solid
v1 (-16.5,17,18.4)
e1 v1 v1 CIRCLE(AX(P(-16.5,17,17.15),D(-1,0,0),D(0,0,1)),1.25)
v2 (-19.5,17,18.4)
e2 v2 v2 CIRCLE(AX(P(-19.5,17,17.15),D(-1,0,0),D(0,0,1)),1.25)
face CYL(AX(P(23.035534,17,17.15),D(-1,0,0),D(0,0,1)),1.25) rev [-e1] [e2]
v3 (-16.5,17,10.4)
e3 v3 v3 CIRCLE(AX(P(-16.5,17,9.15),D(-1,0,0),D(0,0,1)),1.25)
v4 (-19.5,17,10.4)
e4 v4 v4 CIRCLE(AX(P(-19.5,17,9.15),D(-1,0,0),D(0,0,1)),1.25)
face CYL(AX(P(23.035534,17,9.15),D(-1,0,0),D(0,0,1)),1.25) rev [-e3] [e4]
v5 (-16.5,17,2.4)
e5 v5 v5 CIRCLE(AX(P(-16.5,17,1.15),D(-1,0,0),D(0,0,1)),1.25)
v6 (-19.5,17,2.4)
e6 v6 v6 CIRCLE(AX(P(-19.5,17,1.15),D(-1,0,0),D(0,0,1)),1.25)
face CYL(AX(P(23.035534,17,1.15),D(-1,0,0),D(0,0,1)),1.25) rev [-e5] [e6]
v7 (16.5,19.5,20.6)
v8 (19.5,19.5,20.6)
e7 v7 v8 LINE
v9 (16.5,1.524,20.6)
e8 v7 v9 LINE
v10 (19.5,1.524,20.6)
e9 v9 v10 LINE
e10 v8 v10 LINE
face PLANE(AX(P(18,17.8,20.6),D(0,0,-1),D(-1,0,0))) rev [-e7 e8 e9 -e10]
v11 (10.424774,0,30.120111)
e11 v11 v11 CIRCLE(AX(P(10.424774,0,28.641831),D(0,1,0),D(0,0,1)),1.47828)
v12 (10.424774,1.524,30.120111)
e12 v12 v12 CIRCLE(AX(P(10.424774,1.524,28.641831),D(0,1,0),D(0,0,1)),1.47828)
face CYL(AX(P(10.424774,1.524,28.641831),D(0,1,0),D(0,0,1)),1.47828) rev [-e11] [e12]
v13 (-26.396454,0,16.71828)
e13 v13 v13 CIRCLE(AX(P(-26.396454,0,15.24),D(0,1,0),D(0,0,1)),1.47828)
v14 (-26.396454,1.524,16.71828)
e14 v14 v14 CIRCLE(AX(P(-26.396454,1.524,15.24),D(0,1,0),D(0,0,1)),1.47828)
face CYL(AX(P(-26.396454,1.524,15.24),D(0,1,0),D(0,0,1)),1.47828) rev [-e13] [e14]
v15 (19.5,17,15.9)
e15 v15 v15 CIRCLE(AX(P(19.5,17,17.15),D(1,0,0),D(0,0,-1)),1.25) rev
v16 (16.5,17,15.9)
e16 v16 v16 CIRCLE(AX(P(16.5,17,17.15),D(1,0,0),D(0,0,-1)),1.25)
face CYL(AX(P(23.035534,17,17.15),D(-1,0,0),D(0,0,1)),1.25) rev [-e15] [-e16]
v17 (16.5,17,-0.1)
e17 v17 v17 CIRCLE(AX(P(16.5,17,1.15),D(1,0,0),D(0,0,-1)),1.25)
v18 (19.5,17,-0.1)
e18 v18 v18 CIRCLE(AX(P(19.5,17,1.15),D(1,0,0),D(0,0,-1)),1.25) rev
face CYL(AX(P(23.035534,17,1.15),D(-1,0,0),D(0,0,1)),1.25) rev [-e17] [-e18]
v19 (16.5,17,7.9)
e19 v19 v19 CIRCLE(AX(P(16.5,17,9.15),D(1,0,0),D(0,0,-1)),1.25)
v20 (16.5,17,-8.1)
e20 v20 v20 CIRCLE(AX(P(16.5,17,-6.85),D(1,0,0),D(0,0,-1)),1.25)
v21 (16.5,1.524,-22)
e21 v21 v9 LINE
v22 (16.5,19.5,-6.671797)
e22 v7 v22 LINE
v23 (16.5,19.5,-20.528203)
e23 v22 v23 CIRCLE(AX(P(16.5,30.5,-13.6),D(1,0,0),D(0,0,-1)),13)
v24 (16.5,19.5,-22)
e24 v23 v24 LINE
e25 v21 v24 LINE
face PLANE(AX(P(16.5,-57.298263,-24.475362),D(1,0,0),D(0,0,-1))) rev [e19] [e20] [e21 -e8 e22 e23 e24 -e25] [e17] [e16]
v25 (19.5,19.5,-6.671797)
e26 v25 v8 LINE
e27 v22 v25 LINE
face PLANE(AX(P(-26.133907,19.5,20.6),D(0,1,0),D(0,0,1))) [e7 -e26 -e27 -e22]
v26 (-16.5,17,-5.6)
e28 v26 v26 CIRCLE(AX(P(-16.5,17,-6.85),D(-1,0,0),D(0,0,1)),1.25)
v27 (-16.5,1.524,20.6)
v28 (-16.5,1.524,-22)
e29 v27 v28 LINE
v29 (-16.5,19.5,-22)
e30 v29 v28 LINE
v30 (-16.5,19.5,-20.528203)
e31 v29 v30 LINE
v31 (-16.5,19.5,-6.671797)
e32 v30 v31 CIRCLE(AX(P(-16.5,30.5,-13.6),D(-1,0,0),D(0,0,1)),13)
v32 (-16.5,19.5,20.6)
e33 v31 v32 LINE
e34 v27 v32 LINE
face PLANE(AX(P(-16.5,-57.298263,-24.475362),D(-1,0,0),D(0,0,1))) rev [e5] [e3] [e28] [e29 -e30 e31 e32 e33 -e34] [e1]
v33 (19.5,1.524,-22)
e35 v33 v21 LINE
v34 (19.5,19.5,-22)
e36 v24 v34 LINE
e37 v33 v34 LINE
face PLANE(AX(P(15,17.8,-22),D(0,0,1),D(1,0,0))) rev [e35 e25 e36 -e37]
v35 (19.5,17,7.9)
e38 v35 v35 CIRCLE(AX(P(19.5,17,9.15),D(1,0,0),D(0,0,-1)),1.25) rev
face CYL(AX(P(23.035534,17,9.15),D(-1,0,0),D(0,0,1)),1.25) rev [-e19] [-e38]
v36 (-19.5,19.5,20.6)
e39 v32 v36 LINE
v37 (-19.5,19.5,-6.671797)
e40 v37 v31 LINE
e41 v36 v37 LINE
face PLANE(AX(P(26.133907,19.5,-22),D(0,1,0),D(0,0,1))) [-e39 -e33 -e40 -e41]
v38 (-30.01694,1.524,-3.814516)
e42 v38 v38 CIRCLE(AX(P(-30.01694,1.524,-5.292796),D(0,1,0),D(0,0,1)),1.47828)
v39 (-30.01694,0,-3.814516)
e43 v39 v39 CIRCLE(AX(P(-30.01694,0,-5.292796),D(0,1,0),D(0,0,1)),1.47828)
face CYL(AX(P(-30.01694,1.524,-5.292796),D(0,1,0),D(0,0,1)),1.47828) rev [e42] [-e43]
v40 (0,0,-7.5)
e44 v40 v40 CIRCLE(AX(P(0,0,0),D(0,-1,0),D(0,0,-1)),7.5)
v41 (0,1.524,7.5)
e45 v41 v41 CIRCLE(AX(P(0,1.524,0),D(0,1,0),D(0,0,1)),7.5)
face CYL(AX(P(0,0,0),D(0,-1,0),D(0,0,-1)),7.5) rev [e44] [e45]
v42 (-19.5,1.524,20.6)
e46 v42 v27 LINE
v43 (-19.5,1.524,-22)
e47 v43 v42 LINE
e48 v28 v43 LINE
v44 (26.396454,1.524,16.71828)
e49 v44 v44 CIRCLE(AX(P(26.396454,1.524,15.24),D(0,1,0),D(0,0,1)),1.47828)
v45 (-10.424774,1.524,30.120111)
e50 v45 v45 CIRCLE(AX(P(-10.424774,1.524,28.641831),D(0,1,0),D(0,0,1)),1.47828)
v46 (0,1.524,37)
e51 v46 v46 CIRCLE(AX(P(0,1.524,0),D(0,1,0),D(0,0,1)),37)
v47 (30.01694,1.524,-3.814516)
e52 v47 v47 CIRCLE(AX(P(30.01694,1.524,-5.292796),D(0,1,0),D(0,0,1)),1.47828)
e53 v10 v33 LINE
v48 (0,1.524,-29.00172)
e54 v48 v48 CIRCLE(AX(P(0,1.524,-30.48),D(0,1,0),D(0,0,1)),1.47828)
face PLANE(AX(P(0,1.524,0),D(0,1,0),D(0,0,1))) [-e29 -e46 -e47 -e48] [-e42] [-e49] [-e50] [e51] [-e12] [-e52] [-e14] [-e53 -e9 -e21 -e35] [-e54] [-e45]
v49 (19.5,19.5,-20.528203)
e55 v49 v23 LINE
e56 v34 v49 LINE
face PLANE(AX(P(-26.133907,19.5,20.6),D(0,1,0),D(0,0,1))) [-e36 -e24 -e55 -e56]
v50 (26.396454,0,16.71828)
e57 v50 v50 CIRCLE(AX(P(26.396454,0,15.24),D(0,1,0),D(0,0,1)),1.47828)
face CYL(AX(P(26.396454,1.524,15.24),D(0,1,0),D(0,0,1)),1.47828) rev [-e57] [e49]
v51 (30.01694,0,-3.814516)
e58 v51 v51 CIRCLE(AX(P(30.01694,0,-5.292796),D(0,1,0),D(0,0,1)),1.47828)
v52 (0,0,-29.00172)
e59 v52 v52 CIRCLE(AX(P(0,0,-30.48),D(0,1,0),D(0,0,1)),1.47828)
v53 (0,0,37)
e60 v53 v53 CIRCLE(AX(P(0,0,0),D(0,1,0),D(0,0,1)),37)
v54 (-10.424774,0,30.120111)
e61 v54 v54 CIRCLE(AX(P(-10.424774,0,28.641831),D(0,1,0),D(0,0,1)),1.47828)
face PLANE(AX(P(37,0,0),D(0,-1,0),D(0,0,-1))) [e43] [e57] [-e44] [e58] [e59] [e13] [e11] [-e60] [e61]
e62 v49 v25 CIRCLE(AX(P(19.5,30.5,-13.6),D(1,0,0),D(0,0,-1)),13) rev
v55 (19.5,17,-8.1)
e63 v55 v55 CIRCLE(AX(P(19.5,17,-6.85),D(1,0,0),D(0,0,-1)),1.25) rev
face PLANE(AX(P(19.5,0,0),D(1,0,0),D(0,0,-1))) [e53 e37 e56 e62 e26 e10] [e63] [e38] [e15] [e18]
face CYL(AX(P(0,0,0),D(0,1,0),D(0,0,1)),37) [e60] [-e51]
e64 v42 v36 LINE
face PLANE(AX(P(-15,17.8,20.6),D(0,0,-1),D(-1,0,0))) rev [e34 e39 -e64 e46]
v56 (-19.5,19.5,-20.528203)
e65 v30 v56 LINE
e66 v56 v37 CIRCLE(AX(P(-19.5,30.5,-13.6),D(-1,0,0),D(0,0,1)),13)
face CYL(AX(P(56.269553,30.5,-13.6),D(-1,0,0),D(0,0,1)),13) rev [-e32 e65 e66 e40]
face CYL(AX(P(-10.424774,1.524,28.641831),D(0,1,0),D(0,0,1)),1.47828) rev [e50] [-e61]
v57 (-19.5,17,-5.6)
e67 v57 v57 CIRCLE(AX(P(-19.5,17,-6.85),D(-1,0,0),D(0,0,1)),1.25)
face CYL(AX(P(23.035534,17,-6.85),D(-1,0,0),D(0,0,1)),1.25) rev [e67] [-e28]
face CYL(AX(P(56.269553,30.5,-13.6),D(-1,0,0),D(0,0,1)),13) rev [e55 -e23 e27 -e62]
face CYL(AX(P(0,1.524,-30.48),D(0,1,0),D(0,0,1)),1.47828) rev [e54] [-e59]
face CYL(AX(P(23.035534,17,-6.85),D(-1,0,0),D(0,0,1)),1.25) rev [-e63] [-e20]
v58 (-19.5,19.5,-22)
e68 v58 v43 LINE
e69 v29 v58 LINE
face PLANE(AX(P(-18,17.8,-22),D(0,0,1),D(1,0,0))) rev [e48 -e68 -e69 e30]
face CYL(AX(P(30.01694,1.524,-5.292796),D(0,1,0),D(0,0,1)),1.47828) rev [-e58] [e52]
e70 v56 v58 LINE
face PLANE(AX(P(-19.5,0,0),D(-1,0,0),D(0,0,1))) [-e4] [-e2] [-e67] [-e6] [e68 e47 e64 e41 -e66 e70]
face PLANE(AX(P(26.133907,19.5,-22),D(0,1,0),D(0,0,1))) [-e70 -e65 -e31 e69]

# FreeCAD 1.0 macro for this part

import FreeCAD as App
import Part
import Sketcher
Q = App.Units.Quantity


def add_polygon(sketch, points):
    """Adds a closed chain of lines whose ends are joined by coincident constraints."""
    first, n = sketch.GeometryCount, len(points)
    for a, b in zip(points, points[1:] + points[:1]):
        sketch.addGeometry(Part.LineSegment(App.Vector(*a, 0), App.Vector(*b, 0)), False)
    for i in range(n):
        sketch.addConstraint(Sketcher.Constraint("Coincident", first + i, 2, first + (i + 1) % n, 1))

doc = App.newDocument("Part")
body = doc.addObject("PartDesign::Body", "Body")

# Sketch on XY plane
sketch1 = doc.addObject("Sketcher::SketchObject", "Sketch")
body.addObject(sketch1)
sketch1.AttachmentSupport = (doc.XY_Plane, [""])
sketch1.MapMode = "FlatFace"
add_polygon(sketch1, [(37, 1.524), (37, 0), (0, 0), (0, 1.524)])  # lines 0-3
sketch1.addConstraint([
    Sketcher.Constraint("Vertical", 0),
    Sketcher.Constraint("Horizontal", 1),
    Sketcher.Constraint("Vertical", 2),
    Sketcher.Constraint("Horizontal", 3),
    Sketcher.Constraint("Coincident", 1, 2, -1, 1),
    Sketcher.Constraint("DistanceX", 1, 2, 1, 1, Q("37 mm")),
    Sketcher.Constraint("DistanceY", 0, 2, 0, 1, Q("1.524 mm")),
])
revolution = doc.addObject("PartDesign::Revolution", "Revolution")
body.addObject(revolution)
revolution.Profile = sketch1
revolution.ReferenceAxis = (sketch1, ["V_Axis"])
revolution.Angle = 360

# Sketch on XZ plane
sketch2 = doc.addObject("Sketcher::SketchObject", "Sketch001")
body.addObject(sketch2)
sketch2.AttachmentSupport = (doc.XZ_Plane, [""])
sketch2.MapMode = "FlatFace"
sketch2.AttachmentOffset = App.Placement(App.Vector(0, 0, -1.524), App.Rotation())
add_polygon(sketch2, [(-15, 20.6), (-15, -22), (-18, -22), (-18, 20.6)])  # lines 0-3
sketch2.addConstraint([
    Sketcher.Constraint("Vertical", 0),
    Sketcher.Constraint("Horizontal", 1),
    Sketcher.Constraint("Vertical", 2),
    Sketcher.Constraint("Horizontal", 3),
    Sketcher.Constraint("DistanceX", 1, 2, 1, 1, Q("3 mm")),
    Sketcher.Constraint("DistanceY", 0, 2, 0, 1, Q("42.6 mm")),
    Sketcher.Constraint("DistanceX", 0, 2, -1, 1, Q("15 mm")),
    Sketcher.Constraint("DistanceY", 0, 2, -1, 1, Q("22 mm")),
])
pad1 = doc.addObject("PartDesign::Pad", "Pad")
body.addObject(pad1)
pad1.Profile = sketch2
pad1.Length = 16.276
pad1.Reversed = True

# Sketch on XZ plane
sketch3 = doc.addObject("Sketcher::SketchObject", "Sketch002")
body.addObject(sketch3)
sketch3.AttachmentSupport = (doc.XZ_Plane, [""])
sketch3.MapMode = "FlatFace"
sketch3.AttachmentOffset = App.Placement(App.Vector(0, 0, -1.524), App.Rotation())
add_polygon(sketch3, [(18, 20.6), (18, -22), (15, -22), (15, 20.6)])  # lines 0-3
sketch3.addConstraint([
    Sketcher.Constraint("Vertical", 0),
    Sketcher.Constraint("Horizontal", 1),
    Sketcher.Constraint("Vertical", 2),
    Sketcher.Constraint("Horizontal", 3),
    Sketcher.Constraint("DistanceX", 1, 2, 1, 1, Q("3 mm")),
    Sketcher.Constraint("DistanceY", 0, 2, 0, 1, Q("42.6 mm")),
    Sketcher.Constraint("DistanceX", -1, 1, 0, 2, Q("18 mm")),
    Sketcher.Constraint("DistanceY", 0, 2, -1, 1, Q("22 mm")),
])
pad2 = doc.addObject("PartDesign::Pad", "Pad001")
body.addObject(pad2)
pad2.Profile = sketch3
pad2.Length = 16.276
pad2.Reversed = True

# Sketch on XZ plane
sketch4 = doc.addObject("Sketcher::SketchObject", "Sketch003")
body.addObject(sketch4)
sketch4.AttachmentSupport = (doc.XZ_Plane, [""])
sketch4.MapMode = "FlatFace"
sketch4.AttachmentOffset = App.Placement(App.Vector(0, 0, -1.524), App.Rotation())
sketch4.addGeometry([
    Part.Circle(App.Vector(0, -30.48, 0), App.Vector(0, 0, 1), 1.47828),  # 0
    Part.Circle(App.Vector(30.01694, -5.292796, 0), App.Vector(0, 0, 1), 1.47828),  # 1
    Part.Circle(App.Vector(26.396454, 15.24, 0), App.Vector(0, 0, 1), 1.47828),  # 2
    Part.Circle(App.Vector(10.424774, 28.641831, 0), App.Vector(0, 0, 1), 1.47828),  # 3
    Part.Circle(App.Vector(-10.424774, 28.641831, 0), App.Vector(0, 0, 1), 1.47828),  # 4
    Part.Circle(App.Vector(-26.396454, 15.24, 0), App.Vector(0, 0, 1), 1.47828),  # 5
    Part.Circle(App.Vector(-30.01694, -5.292796, 0), App.Vector(0, 0, 1), 1.47828),  # 6
], False)
sketch4.addConstraint([
    Sketcher.Constraint("Equal", 0, 1),
    Sketcher.Constraint("Equal", 1, 2),
    Sketcher.Constraint("Equal", 2, 3),
    Sketcher.Constraint("Equal", 3, 4),
    Sketcher.Constraint("Equal", 4, 5),
    Sketcher.Constraint("Equal", 5, 6),
    Sketcher.Constraint("Symmetric", 3, 3, 4, 3, -2),
    Sketcher.Constraint("Symmetric", 2, 3, 5, 3, -2),
    Sketcher.Constraint("Symmetric", 1, 3, 6, 3, -2),
    Sketcher.Constraint("PointOnObject", 0, 3, -2),
    Sketcher.Constraint("Diameter", 0, Q("2.95656 mm")),
    Sketcher.Constraint("DistanceY", 0, 3, -1, 1, Q("30.48 mm")),
    Sketcher.Constraint("DistanceY", -1, 1, 2, 3, Q("15.24 mm")),
    Sketcher.Constraint("DistanceX", -1, 1, 1, 3, Q("30.01694 mm")),
    Sketcher.Constraint("DistanceY", -1, 1, 3, 3, Q("28.641831 mm")),
    Sketcher.Constraint("DistanceX", 3, 3, 2, 3, Q("15.97168 mm")),
    Sketcher.Constraint("DistanceX", 4, 3, 2, 3, Q("36.821228 mm")),
    Sketcher.Constraint("DistanceY", 1, 3, -1, 1, Q("5.292796 mm")),
])
doc.recompute()
hole = doc.addObject("PartDesign::Hole", "Hole")
body.addObject(hole)
hole.Profile = sketch4
hole.ThreadType = "None"
hole.Diameter = 2.95656
hole.DepthType = "Dimension"
hole.Depth = 1.524
hole.DrillPoint = "Flat"
hole.Reversed = True

# Sketch on XZ plane
sketch5 = doc.addObject("Sketcher::SketchObject", "Sketch004")
body.addObject(sketch5)
sketch5.AttachmentSupport = (doc.XZ_Plane, [""])
sketch5.MapMode = "FlatFace"
sketch5.addGeometry(Part.Circle(App.Vector(0, 0, 0), App.Vector(0, 0, 1), 7.5), False)
sketch5.addConstraint([
    Sketcher.Constraint("Coincident", 0, 3, -1, 1),
    Sketcher.Constraint("Diameter", 0, Q("15 mm")),
])
doc.recompute()
hole2 = doc.addObject("PartDesign::Hole", "Hole001")
body.addObject(hole2)
hole2.Profile = sketch5
hole2.ThreadType = "None"
hole2.Diameter = 15
hole2.DepthType = "Dimension"
hole2.Depth = 17.8
hole2.DrillPoint = "Flat"

# Sketch on XZ plane
sketch6 = doc.addObject("Sketcher::SketchObject", "Sketch005")
body.addObject(sketch6)
sketch6.AttachmentSupport = (doc.XZ_Plane, [""])
sketch6.MapMode = "FlatFace"
sketch6.AttachmentOffset = App.Placement(App.Vector(0, 0, -17.8), App.Rotation())
add_polygon(sketch6, [(-16.5, -24.475362), (-16.5, 24.218155), (16.5, 24.218155), (16.5, -24.475362)])  # lines 0-3
sketch6.addConstraint([
    Sketcher.Constraint("Vertical", 0),
    Sketcher.Constraint("Horizontal", 1),
    Sketcher.Constraint("Vertical", 2),
    Sketcher.Constraint("Horizontal", 3),
    Sketcher.Constraint("DistanceX", 1, 1, 1, 2, Q("33 mm")),
    Sketcher.Constraint("DistanceX", 0, 2, -1, 1, Q("16.5 mm")),
    Sketcher.Constraint("DistanceY", 0, 1, 0, 2, Q("48.693517 mm")),
    Sketcher.Constraint("DistanceY", 2, 2, -1, 1, Q("24.475362 mm")),
])
pocket1 = doc.addObject("PartDesign::Pocket", "Pocket")
body.addObject(pocket1)
pocket1.Profile = sketch6
pocket1.Length = 16.276
pocket1.Reversed = True

# Sketch on YZ plane
sketch7 = doc.addObject("Sketcher::SketchObject", "Sketch006")
body.addObject(sketch7)
sketch7.AttachmentSupport = (doc.YZ_Plane, [""])
sketch7.MapMode = "FlatFace"
sketch7.AttachmentOffset = App.Placement(App.Vector(0, 0, 18), App.Rotation())
add_polygon(sketch7, [(17.8, 20.6), (1.524, 20.6), (1.524, -22), (17.8, -22)])  # lines 0-3
sketch7.addConstraint([
    Sketcher.Constraint("Horizontal", 0),
    Sketcher.Constraint("Vertical", 1),
    Sketcher.Constraint("Horizontal", 2),
    Sketcher.Constraint("Vertical", 3),
    Sketcher.Constraint("DistanceY", 1, 2, 1, 1, Q("42.6 mm")),
    Sketcher.Constraint("DistanceY", 1, 2, -1, 1, Q("22 mm")),
    Sketcher.Constraint("DistanceX", -1, 1, 2, 2, Q("17.8 mm")),
    Sketcher.Constraint("DistanceX", 0, 2, 0, 1, Q("16.276 mm")),
])
pad3 = doc.addObject("PartDesign::Pad", "Pad002")
body.addObject(pad3)
pad3.Profile = sketch7
pad3.Length = 1.5

# Sketch on YZ plane
sketch8 = doc.addObject("Sketcher::SketchObject", "Sketch007")
body.addObject(sketch8)
sketch8.AttachmentSupport = (doc.YZ_Plane, [""])
sketch8.MapMode = "FlatFace"
sketch8.AttachmentOffset = App.Placement(App.Vector(0, 0, -18), App.Rotation())
add_polygon(sketch8, [(17.8, -22), (1.524, -22), (1.524, 20.6), (17.8, 20.6)])  # lines 0-3
sketch8.addConstraint([
    Sketcher.Constraint("Horizontal", 0),
    Sketcher.Constraint("Vertical", 1),
    Sketcher.Constraint("Horizontal", 2),
    Sketcher.Constraint("Vertical", 3),
    Sketcher.Constraint("DistanceY", 1, 1, 1, 2, Q("42.6 mm")),
    Sketcher.Constraint("DistanceY", 0, 2, -1, 1, Q("22 mm")),
    Sketcher.Constraint("DistanceX", -1, 1, 2, 2, Q("17.8 mm")),
    Sketcher.Constraint("DistanceX", 0, 2, 0, 1, Q("16.276 mm")),
])
pad4 = doc.addObject("PartDesign::Pad", "Pad003")
body.addObject(pad4)
pad4.Profile = sketch8
pad4.Length = 1.5
pad4.Reversed = True

# Sketch on YZ plane
sketch9 = doc.addObject("Sketcher::SketchObject", "Sketch008")
body.addObject(sketch9)
sketch9.AttachmentSupport = (doc.YZ_Plane, [""])
sketch9.MapMode = "FlatFace"
sketch9.AttachmentOffset = App.Placement(App.Vector(0, 0, -19.5), App.Rotation())
add_polygon(sketch9, [(19.5, -22), (17.8, -22), (17.8, 20.6), (19.5, 20.6)])  # lines 0-3
sketch9.addConstraint([
    Sketcher.Constraint("Horizontal", 0),
    Sketcher.Constraint("Vertical", 1),
    Sketcher.Constraint("Horizontal", 2),
    Sketcher.Constraint("Vertical", 3),
    Sketcher.Constraint("DistanceX", 0, 2, 0, 1, Q("1.7 mm")),
    Sketcher.Constraint("DistanceY", 1, 1, 1, 2, Q("42.6 mm")),
    Sketcher.Constraint("DistanceY", 0, 2, -1, 1, Q("22 mm")),
    Sketcher.Constraint("DistanceX", -1, 1, 0, 2, Q("17.8 mm")),
])
pad5 = doc.addObject("PartDesign::Pad", "Pad004")
body.addObject(pad5)
pad5.Profile = sketch9
pad5.Length = 3

# Sketch on YZ plane
sketch10 = doc.addObject("Sketcher::SketchObject", "Sketch009")
body.addObject(sketch10)
sketch10.AttachmentSupport = (doc.YZ_Plane, [""])
sketch10.MapMode = "FlatFace"
sketch10.AttachmentOffset = App.Placement(App.Vector(0, 0, 19.5), App.Rotation())
add_polygon(sketch10, [(19.5, 20.6), (17.8, 20.6), (17.8, -22), (19.5, -22)])  # lines 0-3
sketch10.addConstraint([
    Sketcher.Constraint("Horizontal", 0),
    Sketcher.Constraint("Vertical", 1),
    Sketcher.Constraint("Horizontal", 2),
    Sketcher.Constraint("Vertical", 3),
    Sketcher.Constraint("DistanceX", 0, 2, 0, 1, Q("1.7 mm")),
    Sketcher.Constraint("DistanceY", 1, 2, 1, 1, Q("42.6 mm")),
    Sketcher.Constraint("DistanceY", 1, 2, -1, 1, Q("22 mm")),
    Sketcher.Constraint("DistanceX", -1, 1, 0, 2, Q("17.8 mm")),
])
pad6 = doc.addObject("PartDesign::Pad", "Pad005")
body.addObject(pad6)
pad6.Profile = sketch10
pad6.Length = 3
pad6.Reversed = True

# Sketch on YZ plane
sketch11 = doc.addObject("Sketcher::SketchObject", "Sketch010")
body.addObject(sketch11)
sketch11.AttachmentSupport = (doc.YZ_Plane, [""])
sketch11.MapMode = "FlatFace"
sketch11.AttachmentOffset = App.Placement(App.Vector(0, 0, -19.5), App.Rotation())
sketch11.addGeometry(Part.Circle(App.Vector(30.5, -13.6, 0), App.Vector(0, 0, 1), 13), False)
sketch11.addConstraint([
    Sketcher.Constraint("Diameter", 0, Q("26 mm")),
    Sketcher.Constraint("DistanceX", -1, 1, 0, 3, Q("30.5 mm")),
    Sketcher.Constraint("DistanceY", 0, 3, -1, 1, Q("13.6 mm")),
])
pocket2 = doc.addObject("PartDesign::Pocket", "Pocket001")
body.addObject(pocket2)
pocket2.Profile = sketch11
pocket2.Length = 39
pocket2.Reversed = True

# Sketch on YZ plane
sketch12 = doc.addObject("Sketcher::SketchObject", "Sketch011")
body.addObject(sketch12)
sketch12.AttachmentSupport = (doc.YZ_Plane, [""])
sketch12.MapMode = "FlatFace"
sketch12.AttachmentOffset = App.Placement(App.Vector(0, 0, -19.5), App.Rotation())
sketch12.addGeometry([
    Part.Circle(App.Vector(17, 17.15, 0), App.Vector(0, 0, 1), 1.25),
    Part.Circle(App.Vector(17, 9.15, 0), App.Vector(0, 0, 1), 1.25),
    Part.Circle(App.Vector(17, 1.15, 0), App.Vector(0, 0, 1), 1.25),
    Part.Circle(App.Vector(17, -6.85, 0), App.Vector(0, 0, 1), 1.25),
], False)
sketch12.addConstraint([
    Sketcher.Constraint("Equal", 0, 1),
    Sketcher.Constraint("Equal", 1, 2),
    Sketcher.Constraint("Equal", 2, 3),
    Sketcher.Constraint("Vertical", 0, 3, 1, 3),
    Sketcher.Constraint("Vertical", 1, 3, 2, 3),
    Sketcher.Constraint("Vertical", 2, 3, 3, 3),
    Sketcher.Constraint("Diameter", 0, Q("2.5 mm")),
    Sketcher.Constraint("DistanceX", -1, 1, 0, 3, Q("17 mm")),
    Sketcher.Constraint("DistanceY", 1, 3, 0, 3, Q("8 mm")),
    Sketcher.Constraint("DistanceY", 2, 3, 1, 3, Q("8 mm")),
    Sketcher.Constraint("DistanceY", 3, 3, 2, 3, Q("8 mm")),
    Sketcher.Constraint("DistanceY", -1, 1, 0, 3, Q("17.15 mm")),
])
pocket3 = doc.addObject("PartDesign::Pocket", "Pocket002")
body.addObject(pocket3)
pocket3.Profile = sketch12
pocket3.Length = 39
pocket3.Reversed = True

doc.recompute()
